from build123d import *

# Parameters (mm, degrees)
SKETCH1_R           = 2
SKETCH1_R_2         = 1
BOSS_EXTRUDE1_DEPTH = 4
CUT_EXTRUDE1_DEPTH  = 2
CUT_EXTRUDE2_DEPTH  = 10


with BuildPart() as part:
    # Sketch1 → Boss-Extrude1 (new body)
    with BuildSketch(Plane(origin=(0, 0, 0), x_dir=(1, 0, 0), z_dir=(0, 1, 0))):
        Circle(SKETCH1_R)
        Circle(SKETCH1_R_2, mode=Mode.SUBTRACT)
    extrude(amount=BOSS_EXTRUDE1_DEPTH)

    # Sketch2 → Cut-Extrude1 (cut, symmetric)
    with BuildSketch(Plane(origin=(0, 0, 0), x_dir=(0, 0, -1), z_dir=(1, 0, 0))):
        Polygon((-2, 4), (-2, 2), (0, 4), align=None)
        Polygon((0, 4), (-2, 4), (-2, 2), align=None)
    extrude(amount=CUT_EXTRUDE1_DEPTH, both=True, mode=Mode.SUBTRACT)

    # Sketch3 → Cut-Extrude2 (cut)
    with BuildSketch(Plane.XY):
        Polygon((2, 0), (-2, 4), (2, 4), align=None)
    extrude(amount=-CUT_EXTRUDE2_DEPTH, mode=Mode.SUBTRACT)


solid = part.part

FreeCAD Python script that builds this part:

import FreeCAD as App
import Part
import Sketcher

doc = App.newDocument("Part")
body = doc.addObject("PartDesign::Body", "Body")

sketch1 = doc.addObject("Sketcher::SketchObject", "Sketch")
body.addObject(sketch1)
sketch1.AttachmentSupport = (doc.XZ_Plane, [""])
sketch1.MapMode = "FlatFace"
sketch1.addGeometry([
    Part.Circle(App.Vector(0, 0, 0), App.Vector(0, 0, 1), 2),
    Part.Circle(App.Vector(0, 0, 0), App.Vector(0, 0, 1), 1),
], False)
sketch1.addConstraint([
    Sketcher.Constraint("Coincident", 0, 3, -1, 1),
    Sketcher.Constraint("Coincident", 1, 3, -1, 1),
    Sketcher.Constraint("Diameter", 0, 4.0),
    Sketcher.Constraint("Diameter", 1, 2.0),
])
pad1 = doc.addObject("PartDesign::Pad", "Pad")
body.addObject(pad1)
pad1.Profile = sketch1
pad1.Length = 4
pad1.Reversed = True

sketch2 = doc.addObject("Sketcher::SketchObject", "Sketch001")
body.addObject(sketch2)
sketch2.AttachmentSupport = (doc.YZ_Plane, [""])
sketch2.MapMode = "FlatFace"
sketch2.addGeometry([
    Part.LineSegment(App.Vector(4, 2, 0), App.Vector(2, 2, 0)),
    Part.LineSegment(App.Vector(2, 2, 0), App.Vector(4, 0, 0)),
    Part.LineSegment(App.Vector(4, 0, 0), App.Vector(4, 2, 0)),
], False)
sketch2.addConstraint([
    Sketcher.Constraint("Coincident", 0, 2, 1, 1),
    Sketcher.Constraint("Coincident", 1, 2, 2, 1),
    Sketcher.Constraint("Coincident", 2, 2, 0, 1),
    Sketcher.Constraint("Horizontal", 0),
    Sketcher.Constraint("Vertical", 2),
    Sketcher.Constraint("PointOnObject", 1, 2, -1),
    Sketcher.Constraint("Equal", 0, 2),
    Sketcher.Constraint("DistanceX", 0, 2, 0, 1, 2.0),
    Sketcher.Constraint("DistanceX", -1, 1, 0, 2, 2.0),
])
pocket1 = doc.addObject("PartDesign::Pocket", "Pocket")
body.addObject(pocket1)
pocket1.Profile = sketch2
pocket1.Length = 4
pocket1.Midplane = True

sketch3 = doc.addObject("Sketcher::SketchObject", "Sketch002")
body.addObject(sketch3)
sketch3.AttachmentSupport = (doc.XY_Plane, [""])
sketch3.MapMode = "FlatFace"
sketch3.addGeometry([
    Part.LineSegment(App.Vector(-2, 4, 0), App.Vector(2, 0, 0)),
    Part.LineSegment(App.Vector(2, 0, 0), App.Vector(2, 4, 0)),
    Part.LineSegment(App.Vector(2, 4, 0), App.Vector(-2, 4, 0)),
], False)
sketch3.addConstraint([
    Sketcher.Constraint("Coincident", 0, 2, 1, 1),
    Sketcher.Constraint("Coincident", 1, 2, 2, 1),
    Sketcher.Constraint("Coincident", 2, 2, 0, 1),
    Sketcher.Constraint("Vertical", 1),
    Sketcher.Constraint("Horizontal", 2),
    Sketcher.Constraint("PointOnObject", 0, 2, -1),
    Sketcher.Constraint("Equal", 2, 1),
    Sketcher.Constraint("DistanceX", 2, 2, 2, 1, 4.0),
    Sketcher.Constraint("DistanceX", -1, 1, 0, 2, 2.0),
])
pocket2 = doc.addObject("PartDesign::Pocket", "Pocket001")
body.addObject(pocket2)
pocket2.Profile = sketch3
pocket2.Length = 10

doc.recompute()
